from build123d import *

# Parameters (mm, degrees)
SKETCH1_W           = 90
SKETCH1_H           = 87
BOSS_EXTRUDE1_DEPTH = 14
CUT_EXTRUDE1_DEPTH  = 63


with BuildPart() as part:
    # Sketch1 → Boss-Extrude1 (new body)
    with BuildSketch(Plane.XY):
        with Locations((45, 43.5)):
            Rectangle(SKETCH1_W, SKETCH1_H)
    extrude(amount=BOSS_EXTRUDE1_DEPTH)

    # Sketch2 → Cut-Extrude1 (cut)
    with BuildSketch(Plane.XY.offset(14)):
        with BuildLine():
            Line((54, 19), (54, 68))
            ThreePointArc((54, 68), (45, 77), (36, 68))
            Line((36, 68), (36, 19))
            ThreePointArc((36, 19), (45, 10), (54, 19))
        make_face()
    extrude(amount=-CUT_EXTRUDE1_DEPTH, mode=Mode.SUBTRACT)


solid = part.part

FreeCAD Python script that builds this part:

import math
import FreeCAD as App
import Part
import Sketcher
from FreeCAD import Vector

doc = App.newDocument("Part")
body = doc.addObject("PartDesign::Body", "Body")

sketch1 = doc.addObject("Sketcher::SketchObject", "Sketch")
body.addObject(sketch1)
sketch1.AttachmentSupport = (doc.XY_Plane, [""])
sketch1.MapMode = "FlatFace"
sketch1.addGeometry(Part.LineSegment(Vector(0, 87, 0), Vector(0, 0, 0)), False)
sketch1.addGeometry(Part.LineSegment(Vector(0, 0, 0), Vector(90, 0, 0)), False)
sketch1.addGeometry(Part.LineSegment(Vector(90, 0, 0), Vector(90, 87, 0)), False)
sketch1.addGeometry(Part.LineSegment(Vector(90, 87, 0), Vector(0, 87, 0)), False)
sketch1.addConstraint(Sketcher.Constraint("Coincident", 0, 2, 1, 1))
sketch1.addConstraint(Sketcher.Constraint("Coincident", 1, 2, 2, 1))
sketch1.addConstraint(Sketcher.Constraint("Coincident", 2, 2, 3, 1))
sketch1.addConstraint(Sketcher.Constraint("Coincident", 3, 2, 0, 1))
sketch1.addConstraint(Sketcher.Constraint("Vertical", 0))
sketch1.addConstraint(Sketcher.Constraint("Horizontal", 1))
sketch1.addConstraint(Sketcher.Constraint("Vertical", 2))
sketch1.addConstraint(Sketcher.Constraint("Horizontal", 3))
sketch1.addConstraint(Sketcher.Constraint("Coincident", 0, 2, -1, 1))
sketch1.addConstraint(Sketcher.Constraint("DistanceX", 1, 1, 1, 2, 90.0))
sketch1.addConstraint(Sketcher.Constraint("DistanceY", 0, 2, 0, 1, 87.0))
pad1 = doc.addObject("PartDesign::Pad", "Pad")
body.addObject(pad1)
pad1.Profile = sketch1
pad1.Length = 14

sketch2 = doc.addObject("Sketcher::SketchObject", "Sketch001")
body.addObject(sketch2)
sketch2.AttachmentSupport = (doc.XY_Plane, [""])
sketch2.MapMode = "FlatFace"
sketch2.AttachmentOffset = App.Placement(Vector(0, 0, 14), App.Rotation())
sketch2.addGeometry(Part.LineSegment(Vector(54, 19, 0), Vector(54, 68, 0)), False)
sketch2.addGeometry(Part.ArcOfCircle(Part.Circle(Vector(45, 68, 0), Vector(0, 0, 1), 9), math.radians(0), math.radians(180)), False)
sketch2.addGeometry(Part.LineSegment(Vector(36, 68, 0), Vector(36, 19, 0)), False)
sketch2.addGeometry(Part.ArcOfCircle(Part.Circle(Vector(45, 19, 0), Vector(0, 0, 1), 9), math.radians(180), math.radians(360)), False)
sketch2.addConstraint(Sketcher.Constraint("Tangent", 0, 2, 1, 1))
sketch2.addConstraint(Sketcher.Constraint("Tangent", 1, 2, 2, 1))
sketch2.addConstraint(Sketcher.Constraint("Tangent", 2, 2, 3, 1))
sketch2.addConstraint(Sketcher.Constraint("Tangent", 3, 2, 0, 1))
sketch2.addConstraint(Sketcher.Constraint("Vertical", 0))
sketch2.addConstraint(Sketcher.Constraint("Vertical", 2))
sketch2.addConstraint(Sketcher.Constraint("Radius", 1, 9.0))
sketch2.addConstraint(Sketcher.Constraint("DistanceY", 0, 1, 0, 2, 49.0))
sketch2.addConstraint(Sketcher.Constraint("DistanceX", -1, 1, 1, 3, 45.0))
sketch2.addConstraint(Sketcher.Constraint("DistanceY", -1, 1, 1, 3, 68.0))
pocket1 = doc.addObject("PartDesign::Pocket", "Pocket")
body.addObject(pocket1)
pocket1.Profile = sketch2
pocket1.Length = 63

doc.recompute()
